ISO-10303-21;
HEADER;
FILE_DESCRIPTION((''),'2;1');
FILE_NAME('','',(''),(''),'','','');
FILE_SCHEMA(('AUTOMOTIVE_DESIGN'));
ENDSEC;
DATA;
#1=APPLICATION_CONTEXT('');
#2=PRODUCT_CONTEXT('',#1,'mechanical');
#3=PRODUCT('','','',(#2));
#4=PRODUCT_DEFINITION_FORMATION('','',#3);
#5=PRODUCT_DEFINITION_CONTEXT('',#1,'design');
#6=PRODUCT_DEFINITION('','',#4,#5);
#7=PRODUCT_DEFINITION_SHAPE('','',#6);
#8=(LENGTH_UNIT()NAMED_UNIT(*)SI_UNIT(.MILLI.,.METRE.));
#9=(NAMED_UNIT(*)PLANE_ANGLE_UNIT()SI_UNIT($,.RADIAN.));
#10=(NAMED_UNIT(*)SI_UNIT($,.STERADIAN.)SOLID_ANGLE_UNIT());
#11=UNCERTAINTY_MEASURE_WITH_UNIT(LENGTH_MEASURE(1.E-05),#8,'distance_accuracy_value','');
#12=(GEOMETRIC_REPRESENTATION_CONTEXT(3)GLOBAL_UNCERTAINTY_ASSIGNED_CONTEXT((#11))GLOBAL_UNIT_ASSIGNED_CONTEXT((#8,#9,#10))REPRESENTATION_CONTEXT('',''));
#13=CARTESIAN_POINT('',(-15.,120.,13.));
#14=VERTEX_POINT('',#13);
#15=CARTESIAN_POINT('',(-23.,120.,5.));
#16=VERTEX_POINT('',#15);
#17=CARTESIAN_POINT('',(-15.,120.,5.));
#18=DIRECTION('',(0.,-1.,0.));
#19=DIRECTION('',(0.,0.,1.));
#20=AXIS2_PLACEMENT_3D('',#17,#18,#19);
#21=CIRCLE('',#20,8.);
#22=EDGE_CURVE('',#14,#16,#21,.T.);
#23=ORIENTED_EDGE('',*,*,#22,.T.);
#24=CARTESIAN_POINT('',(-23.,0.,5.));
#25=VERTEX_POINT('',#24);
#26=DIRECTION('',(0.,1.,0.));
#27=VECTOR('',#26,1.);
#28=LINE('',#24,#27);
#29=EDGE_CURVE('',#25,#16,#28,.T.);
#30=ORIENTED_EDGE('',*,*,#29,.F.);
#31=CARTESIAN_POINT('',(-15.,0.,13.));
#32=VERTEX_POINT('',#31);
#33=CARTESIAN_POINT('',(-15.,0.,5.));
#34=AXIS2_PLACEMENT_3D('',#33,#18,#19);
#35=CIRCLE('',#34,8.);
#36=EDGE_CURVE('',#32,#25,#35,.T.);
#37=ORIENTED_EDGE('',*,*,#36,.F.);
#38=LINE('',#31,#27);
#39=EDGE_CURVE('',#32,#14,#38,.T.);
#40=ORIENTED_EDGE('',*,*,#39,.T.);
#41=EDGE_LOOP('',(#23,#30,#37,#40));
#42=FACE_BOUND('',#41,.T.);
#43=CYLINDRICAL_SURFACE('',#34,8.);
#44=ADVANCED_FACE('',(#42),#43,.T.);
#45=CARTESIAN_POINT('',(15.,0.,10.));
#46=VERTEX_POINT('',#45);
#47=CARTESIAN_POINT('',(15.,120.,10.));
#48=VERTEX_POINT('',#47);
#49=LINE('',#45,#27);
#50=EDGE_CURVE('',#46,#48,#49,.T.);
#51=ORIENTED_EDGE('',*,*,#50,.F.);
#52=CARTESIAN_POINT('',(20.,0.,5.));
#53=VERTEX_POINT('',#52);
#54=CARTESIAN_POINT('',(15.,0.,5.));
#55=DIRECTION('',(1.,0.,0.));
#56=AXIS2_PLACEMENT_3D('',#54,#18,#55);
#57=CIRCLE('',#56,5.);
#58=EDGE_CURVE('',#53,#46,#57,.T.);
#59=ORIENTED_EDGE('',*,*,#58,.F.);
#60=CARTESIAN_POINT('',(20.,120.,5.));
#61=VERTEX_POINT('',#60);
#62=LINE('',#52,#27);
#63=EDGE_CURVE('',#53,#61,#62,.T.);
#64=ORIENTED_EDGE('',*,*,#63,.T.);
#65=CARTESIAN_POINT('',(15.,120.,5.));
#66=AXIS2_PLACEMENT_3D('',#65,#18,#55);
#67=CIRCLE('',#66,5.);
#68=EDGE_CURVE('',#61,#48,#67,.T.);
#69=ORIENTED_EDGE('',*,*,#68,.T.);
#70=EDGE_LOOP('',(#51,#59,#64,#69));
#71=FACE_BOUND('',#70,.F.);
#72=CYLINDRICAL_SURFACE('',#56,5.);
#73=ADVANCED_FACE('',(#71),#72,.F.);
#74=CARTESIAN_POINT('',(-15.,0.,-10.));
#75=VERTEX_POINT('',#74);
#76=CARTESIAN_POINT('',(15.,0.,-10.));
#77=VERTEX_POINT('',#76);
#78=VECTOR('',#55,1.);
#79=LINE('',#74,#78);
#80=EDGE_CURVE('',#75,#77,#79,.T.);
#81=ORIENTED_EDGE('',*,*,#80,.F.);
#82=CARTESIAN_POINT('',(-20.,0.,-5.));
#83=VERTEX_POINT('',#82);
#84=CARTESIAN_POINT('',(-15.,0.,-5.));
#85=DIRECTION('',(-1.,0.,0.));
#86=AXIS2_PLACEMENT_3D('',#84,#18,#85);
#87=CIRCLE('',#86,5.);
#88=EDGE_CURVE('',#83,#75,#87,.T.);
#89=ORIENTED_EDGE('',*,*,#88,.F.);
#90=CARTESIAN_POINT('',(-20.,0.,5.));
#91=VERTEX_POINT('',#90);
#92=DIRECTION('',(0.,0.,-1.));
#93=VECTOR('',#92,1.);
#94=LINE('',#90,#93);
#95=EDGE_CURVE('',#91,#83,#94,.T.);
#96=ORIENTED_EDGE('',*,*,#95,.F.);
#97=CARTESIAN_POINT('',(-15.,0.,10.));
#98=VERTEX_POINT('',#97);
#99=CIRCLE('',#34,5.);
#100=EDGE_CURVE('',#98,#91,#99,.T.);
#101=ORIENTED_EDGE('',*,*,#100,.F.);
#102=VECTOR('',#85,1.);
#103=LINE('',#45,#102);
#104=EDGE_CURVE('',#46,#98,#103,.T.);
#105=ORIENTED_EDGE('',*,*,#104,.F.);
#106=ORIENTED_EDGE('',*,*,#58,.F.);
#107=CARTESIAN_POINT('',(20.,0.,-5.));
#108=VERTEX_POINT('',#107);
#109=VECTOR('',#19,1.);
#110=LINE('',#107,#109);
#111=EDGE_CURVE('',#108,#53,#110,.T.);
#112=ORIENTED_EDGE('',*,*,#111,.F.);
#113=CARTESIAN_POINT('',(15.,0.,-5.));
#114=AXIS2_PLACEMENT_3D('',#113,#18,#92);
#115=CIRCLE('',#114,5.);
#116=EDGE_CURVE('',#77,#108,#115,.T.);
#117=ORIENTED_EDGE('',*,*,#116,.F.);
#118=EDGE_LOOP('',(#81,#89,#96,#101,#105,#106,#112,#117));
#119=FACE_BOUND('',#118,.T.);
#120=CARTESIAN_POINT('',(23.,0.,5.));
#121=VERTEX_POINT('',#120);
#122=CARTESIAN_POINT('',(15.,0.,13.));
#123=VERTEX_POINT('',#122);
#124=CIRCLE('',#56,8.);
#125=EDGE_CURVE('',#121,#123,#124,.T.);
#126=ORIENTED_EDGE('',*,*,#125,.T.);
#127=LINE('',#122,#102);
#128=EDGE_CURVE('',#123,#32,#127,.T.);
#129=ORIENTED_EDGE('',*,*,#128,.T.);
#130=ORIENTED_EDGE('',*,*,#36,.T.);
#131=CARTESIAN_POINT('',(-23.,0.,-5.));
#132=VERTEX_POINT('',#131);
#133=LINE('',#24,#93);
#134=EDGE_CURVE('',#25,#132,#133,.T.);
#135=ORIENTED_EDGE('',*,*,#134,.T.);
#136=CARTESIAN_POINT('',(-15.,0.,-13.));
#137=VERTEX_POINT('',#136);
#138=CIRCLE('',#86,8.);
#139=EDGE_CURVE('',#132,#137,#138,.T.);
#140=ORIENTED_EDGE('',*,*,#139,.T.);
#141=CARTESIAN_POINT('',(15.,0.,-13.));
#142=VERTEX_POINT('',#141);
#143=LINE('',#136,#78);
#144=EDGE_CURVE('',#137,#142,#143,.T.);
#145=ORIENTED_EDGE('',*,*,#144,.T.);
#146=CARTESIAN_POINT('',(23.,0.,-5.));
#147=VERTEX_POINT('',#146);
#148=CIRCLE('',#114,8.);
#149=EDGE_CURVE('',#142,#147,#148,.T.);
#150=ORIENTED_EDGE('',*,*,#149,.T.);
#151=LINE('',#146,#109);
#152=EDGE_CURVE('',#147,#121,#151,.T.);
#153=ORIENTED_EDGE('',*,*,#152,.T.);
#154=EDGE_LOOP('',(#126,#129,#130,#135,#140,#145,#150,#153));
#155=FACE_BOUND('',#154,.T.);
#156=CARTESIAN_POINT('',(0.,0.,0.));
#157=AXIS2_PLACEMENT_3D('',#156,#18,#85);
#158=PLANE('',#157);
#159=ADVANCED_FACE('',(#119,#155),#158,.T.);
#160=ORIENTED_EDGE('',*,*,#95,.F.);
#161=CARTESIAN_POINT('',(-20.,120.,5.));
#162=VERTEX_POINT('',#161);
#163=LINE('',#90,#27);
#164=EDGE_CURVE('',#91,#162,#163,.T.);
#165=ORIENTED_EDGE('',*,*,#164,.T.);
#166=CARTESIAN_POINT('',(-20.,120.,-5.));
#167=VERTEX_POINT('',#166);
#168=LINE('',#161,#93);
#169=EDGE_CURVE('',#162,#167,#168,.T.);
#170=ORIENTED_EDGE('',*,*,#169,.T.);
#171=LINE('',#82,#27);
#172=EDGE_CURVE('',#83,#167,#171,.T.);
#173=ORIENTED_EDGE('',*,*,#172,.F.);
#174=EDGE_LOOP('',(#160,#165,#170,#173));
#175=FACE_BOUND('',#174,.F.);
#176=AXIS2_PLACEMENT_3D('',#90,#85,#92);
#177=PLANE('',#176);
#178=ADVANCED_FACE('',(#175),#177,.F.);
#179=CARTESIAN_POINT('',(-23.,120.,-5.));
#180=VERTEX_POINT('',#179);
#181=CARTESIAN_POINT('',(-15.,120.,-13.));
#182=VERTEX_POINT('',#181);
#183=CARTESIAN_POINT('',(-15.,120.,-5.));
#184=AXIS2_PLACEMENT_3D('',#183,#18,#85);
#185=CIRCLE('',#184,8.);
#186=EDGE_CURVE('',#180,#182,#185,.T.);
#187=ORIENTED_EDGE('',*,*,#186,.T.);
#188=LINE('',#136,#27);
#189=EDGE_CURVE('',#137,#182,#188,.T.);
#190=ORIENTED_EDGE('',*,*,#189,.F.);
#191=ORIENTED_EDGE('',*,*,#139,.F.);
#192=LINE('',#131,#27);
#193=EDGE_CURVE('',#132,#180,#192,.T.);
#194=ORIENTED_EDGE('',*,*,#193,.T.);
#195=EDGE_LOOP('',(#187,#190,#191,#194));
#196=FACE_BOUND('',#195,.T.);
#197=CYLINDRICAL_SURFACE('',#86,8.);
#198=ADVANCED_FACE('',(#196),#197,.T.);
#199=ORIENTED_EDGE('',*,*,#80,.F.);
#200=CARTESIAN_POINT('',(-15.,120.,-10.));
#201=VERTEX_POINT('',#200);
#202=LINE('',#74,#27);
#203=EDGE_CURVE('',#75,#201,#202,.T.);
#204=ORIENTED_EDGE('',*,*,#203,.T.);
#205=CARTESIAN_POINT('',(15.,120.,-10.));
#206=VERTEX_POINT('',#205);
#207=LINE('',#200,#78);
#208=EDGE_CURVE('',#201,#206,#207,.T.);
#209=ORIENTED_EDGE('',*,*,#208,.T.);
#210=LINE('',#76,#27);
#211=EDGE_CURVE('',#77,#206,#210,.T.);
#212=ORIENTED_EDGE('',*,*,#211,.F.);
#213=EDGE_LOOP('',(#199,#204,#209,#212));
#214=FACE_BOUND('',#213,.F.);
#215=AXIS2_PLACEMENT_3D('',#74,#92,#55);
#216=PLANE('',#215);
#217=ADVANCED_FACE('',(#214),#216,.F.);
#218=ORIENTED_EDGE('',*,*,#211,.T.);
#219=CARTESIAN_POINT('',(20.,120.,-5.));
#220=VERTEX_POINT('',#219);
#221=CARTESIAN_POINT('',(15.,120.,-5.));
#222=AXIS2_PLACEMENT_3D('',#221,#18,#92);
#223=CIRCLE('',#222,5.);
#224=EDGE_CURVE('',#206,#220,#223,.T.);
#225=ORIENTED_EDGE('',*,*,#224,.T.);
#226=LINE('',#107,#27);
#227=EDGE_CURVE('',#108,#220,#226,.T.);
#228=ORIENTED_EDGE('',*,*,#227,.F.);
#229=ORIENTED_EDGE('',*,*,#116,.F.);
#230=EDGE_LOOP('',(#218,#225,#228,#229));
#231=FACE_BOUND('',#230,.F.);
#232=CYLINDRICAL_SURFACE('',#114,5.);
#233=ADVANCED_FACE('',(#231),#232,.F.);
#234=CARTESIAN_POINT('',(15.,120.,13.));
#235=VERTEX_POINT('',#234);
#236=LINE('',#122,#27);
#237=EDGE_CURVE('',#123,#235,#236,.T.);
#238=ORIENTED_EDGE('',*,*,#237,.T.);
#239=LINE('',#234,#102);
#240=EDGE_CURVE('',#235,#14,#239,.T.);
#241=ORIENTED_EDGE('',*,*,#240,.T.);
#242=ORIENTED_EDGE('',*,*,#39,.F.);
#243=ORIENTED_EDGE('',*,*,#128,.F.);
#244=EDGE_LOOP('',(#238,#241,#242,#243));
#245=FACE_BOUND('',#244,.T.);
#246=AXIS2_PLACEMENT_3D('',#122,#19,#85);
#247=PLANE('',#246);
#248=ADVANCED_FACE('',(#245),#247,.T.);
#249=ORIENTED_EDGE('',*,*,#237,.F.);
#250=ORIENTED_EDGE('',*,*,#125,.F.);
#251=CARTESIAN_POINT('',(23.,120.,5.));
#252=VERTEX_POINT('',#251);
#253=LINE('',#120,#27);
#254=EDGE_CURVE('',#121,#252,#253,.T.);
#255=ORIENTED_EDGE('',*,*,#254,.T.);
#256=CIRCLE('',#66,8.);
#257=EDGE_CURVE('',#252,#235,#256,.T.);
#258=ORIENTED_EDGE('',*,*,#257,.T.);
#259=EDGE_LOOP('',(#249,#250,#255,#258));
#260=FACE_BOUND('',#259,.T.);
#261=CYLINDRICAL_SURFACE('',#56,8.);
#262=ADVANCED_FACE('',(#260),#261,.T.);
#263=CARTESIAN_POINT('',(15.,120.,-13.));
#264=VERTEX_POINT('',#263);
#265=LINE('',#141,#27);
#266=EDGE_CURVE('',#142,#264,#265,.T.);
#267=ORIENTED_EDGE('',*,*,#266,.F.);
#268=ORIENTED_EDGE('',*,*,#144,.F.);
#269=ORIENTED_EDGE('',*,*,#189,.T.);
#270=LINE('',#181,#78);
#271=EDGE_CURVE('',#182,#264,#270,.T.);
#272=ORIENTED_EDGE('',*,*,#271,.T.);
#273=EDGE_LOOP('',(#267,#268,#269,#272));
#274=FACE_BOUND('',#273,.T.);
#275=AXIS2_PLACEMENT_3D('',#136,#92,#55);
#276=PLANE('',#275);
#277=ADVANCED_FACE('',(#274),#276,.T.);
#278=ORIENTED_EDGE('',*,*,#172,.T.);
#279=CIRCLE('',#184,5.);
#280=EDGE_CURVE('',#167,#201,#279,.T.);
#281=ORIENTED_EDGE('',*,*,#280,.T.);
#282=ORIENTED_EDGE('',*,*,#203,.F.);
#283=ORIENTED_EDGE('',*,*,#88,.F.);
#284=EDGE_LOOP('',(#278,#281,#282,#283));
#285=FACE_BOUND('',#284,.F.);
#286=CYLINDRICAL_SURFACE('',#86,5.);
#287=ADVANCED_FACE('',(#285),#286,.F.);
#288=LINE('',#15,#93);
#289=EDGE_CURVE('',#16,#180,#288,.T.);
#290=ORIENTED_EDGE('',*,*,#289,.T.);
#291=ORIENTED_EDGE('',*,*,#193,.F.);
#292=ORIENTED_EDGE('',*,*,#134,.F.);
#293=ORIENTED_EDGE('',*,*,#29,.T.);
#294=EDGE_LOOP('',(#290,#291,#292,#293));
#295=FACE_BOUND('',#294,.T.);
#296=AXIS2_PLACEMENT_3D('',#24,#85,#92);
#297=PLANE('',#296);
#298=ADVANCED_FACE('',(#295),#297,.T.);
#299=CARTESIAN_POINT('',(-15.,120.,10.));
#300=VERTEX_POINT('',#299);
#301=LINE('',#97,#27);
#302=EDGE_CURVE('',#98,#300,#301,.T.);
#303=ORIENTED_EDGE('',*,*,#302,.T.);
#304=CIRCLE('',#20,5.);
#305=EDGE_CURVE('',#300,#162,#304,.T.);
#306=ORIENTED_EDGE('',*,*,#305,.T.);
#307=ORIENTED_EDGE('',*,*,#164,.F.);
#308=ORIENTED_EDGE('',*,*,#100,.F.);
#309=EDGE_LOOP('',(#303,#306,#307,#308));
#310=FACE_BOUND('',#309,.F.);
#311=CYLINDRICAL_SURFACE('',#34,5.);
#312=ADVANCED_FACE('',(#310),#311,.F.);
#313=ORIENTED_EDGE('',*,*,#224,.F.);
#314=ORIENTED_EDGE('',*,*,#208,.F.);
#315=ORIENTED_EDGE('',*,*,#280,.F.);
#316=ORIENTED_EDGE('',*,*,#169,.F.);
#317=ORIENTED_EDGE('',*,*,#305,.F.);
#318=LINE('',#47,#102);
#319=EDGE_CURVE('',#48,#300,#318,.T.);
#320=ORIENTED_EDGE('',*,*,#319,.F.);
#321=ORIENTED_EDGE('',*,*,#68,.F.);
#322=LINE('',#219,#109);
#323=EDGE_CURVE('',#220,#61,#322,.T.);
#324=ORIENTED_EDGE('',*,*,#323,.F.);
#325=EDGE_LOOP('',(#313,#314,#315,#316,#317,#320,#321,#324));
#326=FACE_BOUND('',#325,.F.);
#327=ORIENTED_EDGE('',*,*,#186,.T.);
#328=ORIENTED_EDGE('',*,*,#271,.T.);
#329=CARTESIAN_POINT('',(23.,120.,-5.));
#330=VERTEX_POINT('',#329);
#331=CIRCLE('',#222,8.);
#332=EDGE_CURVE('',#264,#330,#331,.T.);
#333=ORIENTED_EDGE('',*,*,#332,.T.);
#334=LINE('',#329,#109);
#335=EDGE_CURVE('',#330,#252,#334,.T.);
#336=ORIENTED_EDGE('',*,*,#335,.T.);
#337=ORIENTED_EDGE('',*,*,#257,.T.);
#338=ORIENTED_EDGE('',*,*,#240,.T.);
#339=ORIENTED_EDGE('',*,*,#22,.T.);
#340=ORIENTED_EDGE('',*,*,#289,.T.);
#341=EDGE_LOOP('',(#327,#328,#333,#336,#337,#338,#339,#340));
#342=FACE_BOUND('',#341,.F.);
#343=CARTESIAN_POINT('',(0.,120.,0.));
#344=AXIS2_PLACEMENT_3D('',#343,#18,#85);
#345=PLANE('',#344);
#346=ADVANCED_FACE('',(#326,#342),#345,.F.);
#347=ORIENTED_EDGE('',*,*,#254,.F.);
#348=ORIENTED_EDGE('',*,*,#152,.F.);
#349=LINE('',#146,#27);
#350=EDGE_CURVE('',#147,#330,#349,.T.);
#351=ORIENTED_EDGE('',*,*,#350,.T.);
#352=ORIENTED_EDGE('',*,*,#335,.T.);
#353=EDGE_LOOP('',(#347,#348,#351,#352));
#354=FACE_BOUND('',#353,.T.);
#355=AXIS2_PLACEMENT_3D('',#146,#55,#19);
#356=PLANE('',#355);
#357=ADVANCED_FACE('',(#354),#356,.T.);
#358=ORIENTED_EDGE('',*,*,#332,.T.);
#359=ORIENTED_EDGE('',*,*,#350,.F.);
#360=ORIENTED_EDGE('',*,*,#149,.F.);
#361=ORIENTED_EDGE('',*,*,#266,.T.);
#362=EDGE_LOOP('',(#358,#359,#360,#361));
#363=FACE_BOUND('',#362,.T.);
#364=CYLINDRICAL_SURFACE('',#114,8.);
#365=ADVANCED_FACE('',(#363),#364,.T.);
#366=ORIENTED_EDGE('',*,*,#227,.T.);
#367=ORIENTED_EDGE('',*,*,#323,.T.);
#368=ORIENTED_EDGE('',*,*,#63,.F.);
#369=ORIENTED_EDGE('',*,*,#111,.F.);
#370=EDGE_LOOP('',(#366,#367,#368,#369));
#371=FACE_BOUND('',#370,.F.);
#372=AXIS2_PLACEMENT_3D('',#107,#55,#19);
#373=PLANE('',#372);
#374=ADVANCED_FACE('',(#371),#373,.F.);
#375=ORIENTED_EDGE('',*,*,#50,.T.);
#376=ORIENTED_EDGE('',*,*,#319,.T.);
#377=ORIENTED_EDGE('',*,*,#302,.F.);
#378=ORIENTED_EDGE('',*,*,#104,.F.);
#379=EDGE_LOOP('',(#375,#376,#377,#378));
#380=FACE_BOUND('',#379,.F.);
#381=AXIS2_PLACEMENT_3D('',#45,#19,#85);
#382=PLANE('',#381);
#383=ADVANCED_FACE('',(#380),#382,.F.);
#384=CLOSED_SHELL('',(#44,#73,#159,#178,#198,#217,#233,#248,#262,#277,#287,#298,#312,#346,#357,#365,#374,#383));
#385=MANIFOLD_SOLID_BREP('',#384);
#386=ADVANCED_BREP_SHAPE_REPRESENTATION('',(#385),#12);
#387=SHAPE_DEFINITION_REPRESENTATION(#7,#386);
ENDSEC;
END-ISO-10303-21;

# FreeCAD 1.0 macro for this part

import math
import FreeCAD as App
import Part
import Sketcher

V = App.Vector

doc = App.newDocument("Part")
body = doc.addObject("PartDesign::Body", "Body")

# Sketch on XZ plane
sketch1 = body.newObject("Sketcher::SketchObject", "Sketch")
sketch1.AttachmentSupport = (doc.getObject("XZ_Plane"), [""])
sketch1.MapMode = "FlatFace"
sketch1.addGeometry([
    Part.LineSegment(V(23, 5, 0), V(23, -5, 0)),  # 0
    Part.ArcOfCircle(Part.Circle(V(15, -5, 0), V(0, 0, 1), 8), math.radians(-90), math.radians(0)),  # 1
    Part.LineSegment(V(15, -13, 0), V(-15, -13, 0)),  # 2
    Part.ArcOfCircle(Part.Circle(V(-15, -5, 0), V(0, 0, 1), 8), math.radians(-180), math.radians(-90)),  # 3
    Part.LineSegment(V(-23, -5, 0), V(-23, 5, 0)),  # 4
    Part.ArcOfCircle(Part.Circle(V(-15, 5, 0), V(0, 0, 1), 8), math.radians(90), math.radians(180)),  # 5
    Part.LineSegment(V(-15, 13, 0), V(15, 13, 0)),  # 6
    Part.ArcOfCircle(Part.Circle(V(15, 5, 0), V(0, 0, 1), 8), math.radians(0), math.radians(90)),  # 7
    Part.LineSegment(V(20, -5, 0), V(20, 5, 0)),  # 8
    Part.ArcOfCircle(Part.Circle(V(15, 5, 0), V(0, 0, 1), 5), math.radians(0), math.radians(90)),  # 9
    Part.LineSegment(V(15, 10, 0), V(-15, 10, 0)),  # 10
    Part.ArcOfCircle(Part.Circle(V(-15, 5, 0), V(0, 0, 1), 5), math.radians(90), math.radians(180)),  # 11
    Part.LineSegment(V(-20, 5, 0), V(-20, -5, 0)),  # 12
    Part.ArcOfCircle(Part.Circle(V(-15, -5, 0), V(0, 0, 1), 5), math.radians(180), math.radians(270)),  # 13
    Part.LineSegment(V(-15, -10, 0), V(15, -10, 0)),  # 14
    Part.ArcOfCircle(Part.Circle(V(15, -5, 0), V(0, 0, 1), 5), math.radians(-90), math.radians(0)),  # 15
], False)
sketch1.addConstraint([
    Sketcher.Constraint("Tangent", 0, 2, 1, 2),
    Sketcher.Constraint("Tangent", 1, 1, 2, 1),
    Sketcher.Constraint("Tangent", 2, 2, 3, 2),
    Sketcher.Constraint("Tangent", 3, 1, 4, 1),
    Sketcher.Constraint("Tangent", 4, 2, 5, 2),
    Sketcher.Constraint("Tangent", 5, 1, 6, 1),
    Sketcher.Constraint("Tangent", 6, 2, 7, 2),
    Sketcher.Constraint("Tangent", 7, 1, 0, 1),
    Sketcher.Constraint("Tangent", 8, 2, 9, 1),
    Sketcher.Constraint("Tangent", 9, 2, 10, 1),
    Sketcher.Constraint("Tangent", 10, 2, 11, 1),
    Sketcher.Constraint("Tangent", 11, 2, 12, 1),
    Sketcher.Constraint("Tangent", 12, 2, 13, 1),
    Sketcher.Constraint("Tangent", 13, 2, 14, 1),
    Sketcher.Constraint("Tangent", 14, 2, 15, 1),
    Sketcher.Constraint("Tangent", 15, 2, 8, 1),
    Sketcher.Constraint("Vertical", 0),
    Sketcher.Constraint("Horizontal", 2),
    Sketcher.Constraint("Vertical", 4),
    Sketcher.Constraint("Horizontal", 6),
    Sketcher.Constraint("Vertical", 8),
    Sketcher.Constraint("Horizontal", 10),
    Sketcher.Constraint("Vertical", 12),
    Sketcher.Constraint("Horizontal", 14),
    Sketcher.Constraint("Coincident", 9, 3, 7, 3),
    Sketcher.Constraint("Coincident", 11, 3, 5, 3),
    Sketcher.Constraint("Coincident", 13, 3, 3, 3),
    Sketcher.Constraint("Equal", 1, 3),
    Sketcher.Constraint("Equal", 3, 5),
    Sketcher.Constraint("Equal", 5, 7),
    Sketcher.Constraint("Equal", 13, 15),
    Sketcher.Constraint("Symmetric", 1, 3, 5, 3, -1, 1),
    Sketcher.Constraint("Radius", 1, 8.0),
    Sketcher.Constraint("Radius", 9, 5.0),
    Sketcher.Constraint("DistanceX", 2, 2, 2, 1, 30.0),
    Sketcher.Constraint("DistanceY", 0, 2, 0, 1, 10.0),
])
pad1 = body.newObject("PartDesign::Pad", "Pad")
pad1.Profile = sketch1
pad1.Length = 120
pad1.Reversed = True

doc.recompute()
